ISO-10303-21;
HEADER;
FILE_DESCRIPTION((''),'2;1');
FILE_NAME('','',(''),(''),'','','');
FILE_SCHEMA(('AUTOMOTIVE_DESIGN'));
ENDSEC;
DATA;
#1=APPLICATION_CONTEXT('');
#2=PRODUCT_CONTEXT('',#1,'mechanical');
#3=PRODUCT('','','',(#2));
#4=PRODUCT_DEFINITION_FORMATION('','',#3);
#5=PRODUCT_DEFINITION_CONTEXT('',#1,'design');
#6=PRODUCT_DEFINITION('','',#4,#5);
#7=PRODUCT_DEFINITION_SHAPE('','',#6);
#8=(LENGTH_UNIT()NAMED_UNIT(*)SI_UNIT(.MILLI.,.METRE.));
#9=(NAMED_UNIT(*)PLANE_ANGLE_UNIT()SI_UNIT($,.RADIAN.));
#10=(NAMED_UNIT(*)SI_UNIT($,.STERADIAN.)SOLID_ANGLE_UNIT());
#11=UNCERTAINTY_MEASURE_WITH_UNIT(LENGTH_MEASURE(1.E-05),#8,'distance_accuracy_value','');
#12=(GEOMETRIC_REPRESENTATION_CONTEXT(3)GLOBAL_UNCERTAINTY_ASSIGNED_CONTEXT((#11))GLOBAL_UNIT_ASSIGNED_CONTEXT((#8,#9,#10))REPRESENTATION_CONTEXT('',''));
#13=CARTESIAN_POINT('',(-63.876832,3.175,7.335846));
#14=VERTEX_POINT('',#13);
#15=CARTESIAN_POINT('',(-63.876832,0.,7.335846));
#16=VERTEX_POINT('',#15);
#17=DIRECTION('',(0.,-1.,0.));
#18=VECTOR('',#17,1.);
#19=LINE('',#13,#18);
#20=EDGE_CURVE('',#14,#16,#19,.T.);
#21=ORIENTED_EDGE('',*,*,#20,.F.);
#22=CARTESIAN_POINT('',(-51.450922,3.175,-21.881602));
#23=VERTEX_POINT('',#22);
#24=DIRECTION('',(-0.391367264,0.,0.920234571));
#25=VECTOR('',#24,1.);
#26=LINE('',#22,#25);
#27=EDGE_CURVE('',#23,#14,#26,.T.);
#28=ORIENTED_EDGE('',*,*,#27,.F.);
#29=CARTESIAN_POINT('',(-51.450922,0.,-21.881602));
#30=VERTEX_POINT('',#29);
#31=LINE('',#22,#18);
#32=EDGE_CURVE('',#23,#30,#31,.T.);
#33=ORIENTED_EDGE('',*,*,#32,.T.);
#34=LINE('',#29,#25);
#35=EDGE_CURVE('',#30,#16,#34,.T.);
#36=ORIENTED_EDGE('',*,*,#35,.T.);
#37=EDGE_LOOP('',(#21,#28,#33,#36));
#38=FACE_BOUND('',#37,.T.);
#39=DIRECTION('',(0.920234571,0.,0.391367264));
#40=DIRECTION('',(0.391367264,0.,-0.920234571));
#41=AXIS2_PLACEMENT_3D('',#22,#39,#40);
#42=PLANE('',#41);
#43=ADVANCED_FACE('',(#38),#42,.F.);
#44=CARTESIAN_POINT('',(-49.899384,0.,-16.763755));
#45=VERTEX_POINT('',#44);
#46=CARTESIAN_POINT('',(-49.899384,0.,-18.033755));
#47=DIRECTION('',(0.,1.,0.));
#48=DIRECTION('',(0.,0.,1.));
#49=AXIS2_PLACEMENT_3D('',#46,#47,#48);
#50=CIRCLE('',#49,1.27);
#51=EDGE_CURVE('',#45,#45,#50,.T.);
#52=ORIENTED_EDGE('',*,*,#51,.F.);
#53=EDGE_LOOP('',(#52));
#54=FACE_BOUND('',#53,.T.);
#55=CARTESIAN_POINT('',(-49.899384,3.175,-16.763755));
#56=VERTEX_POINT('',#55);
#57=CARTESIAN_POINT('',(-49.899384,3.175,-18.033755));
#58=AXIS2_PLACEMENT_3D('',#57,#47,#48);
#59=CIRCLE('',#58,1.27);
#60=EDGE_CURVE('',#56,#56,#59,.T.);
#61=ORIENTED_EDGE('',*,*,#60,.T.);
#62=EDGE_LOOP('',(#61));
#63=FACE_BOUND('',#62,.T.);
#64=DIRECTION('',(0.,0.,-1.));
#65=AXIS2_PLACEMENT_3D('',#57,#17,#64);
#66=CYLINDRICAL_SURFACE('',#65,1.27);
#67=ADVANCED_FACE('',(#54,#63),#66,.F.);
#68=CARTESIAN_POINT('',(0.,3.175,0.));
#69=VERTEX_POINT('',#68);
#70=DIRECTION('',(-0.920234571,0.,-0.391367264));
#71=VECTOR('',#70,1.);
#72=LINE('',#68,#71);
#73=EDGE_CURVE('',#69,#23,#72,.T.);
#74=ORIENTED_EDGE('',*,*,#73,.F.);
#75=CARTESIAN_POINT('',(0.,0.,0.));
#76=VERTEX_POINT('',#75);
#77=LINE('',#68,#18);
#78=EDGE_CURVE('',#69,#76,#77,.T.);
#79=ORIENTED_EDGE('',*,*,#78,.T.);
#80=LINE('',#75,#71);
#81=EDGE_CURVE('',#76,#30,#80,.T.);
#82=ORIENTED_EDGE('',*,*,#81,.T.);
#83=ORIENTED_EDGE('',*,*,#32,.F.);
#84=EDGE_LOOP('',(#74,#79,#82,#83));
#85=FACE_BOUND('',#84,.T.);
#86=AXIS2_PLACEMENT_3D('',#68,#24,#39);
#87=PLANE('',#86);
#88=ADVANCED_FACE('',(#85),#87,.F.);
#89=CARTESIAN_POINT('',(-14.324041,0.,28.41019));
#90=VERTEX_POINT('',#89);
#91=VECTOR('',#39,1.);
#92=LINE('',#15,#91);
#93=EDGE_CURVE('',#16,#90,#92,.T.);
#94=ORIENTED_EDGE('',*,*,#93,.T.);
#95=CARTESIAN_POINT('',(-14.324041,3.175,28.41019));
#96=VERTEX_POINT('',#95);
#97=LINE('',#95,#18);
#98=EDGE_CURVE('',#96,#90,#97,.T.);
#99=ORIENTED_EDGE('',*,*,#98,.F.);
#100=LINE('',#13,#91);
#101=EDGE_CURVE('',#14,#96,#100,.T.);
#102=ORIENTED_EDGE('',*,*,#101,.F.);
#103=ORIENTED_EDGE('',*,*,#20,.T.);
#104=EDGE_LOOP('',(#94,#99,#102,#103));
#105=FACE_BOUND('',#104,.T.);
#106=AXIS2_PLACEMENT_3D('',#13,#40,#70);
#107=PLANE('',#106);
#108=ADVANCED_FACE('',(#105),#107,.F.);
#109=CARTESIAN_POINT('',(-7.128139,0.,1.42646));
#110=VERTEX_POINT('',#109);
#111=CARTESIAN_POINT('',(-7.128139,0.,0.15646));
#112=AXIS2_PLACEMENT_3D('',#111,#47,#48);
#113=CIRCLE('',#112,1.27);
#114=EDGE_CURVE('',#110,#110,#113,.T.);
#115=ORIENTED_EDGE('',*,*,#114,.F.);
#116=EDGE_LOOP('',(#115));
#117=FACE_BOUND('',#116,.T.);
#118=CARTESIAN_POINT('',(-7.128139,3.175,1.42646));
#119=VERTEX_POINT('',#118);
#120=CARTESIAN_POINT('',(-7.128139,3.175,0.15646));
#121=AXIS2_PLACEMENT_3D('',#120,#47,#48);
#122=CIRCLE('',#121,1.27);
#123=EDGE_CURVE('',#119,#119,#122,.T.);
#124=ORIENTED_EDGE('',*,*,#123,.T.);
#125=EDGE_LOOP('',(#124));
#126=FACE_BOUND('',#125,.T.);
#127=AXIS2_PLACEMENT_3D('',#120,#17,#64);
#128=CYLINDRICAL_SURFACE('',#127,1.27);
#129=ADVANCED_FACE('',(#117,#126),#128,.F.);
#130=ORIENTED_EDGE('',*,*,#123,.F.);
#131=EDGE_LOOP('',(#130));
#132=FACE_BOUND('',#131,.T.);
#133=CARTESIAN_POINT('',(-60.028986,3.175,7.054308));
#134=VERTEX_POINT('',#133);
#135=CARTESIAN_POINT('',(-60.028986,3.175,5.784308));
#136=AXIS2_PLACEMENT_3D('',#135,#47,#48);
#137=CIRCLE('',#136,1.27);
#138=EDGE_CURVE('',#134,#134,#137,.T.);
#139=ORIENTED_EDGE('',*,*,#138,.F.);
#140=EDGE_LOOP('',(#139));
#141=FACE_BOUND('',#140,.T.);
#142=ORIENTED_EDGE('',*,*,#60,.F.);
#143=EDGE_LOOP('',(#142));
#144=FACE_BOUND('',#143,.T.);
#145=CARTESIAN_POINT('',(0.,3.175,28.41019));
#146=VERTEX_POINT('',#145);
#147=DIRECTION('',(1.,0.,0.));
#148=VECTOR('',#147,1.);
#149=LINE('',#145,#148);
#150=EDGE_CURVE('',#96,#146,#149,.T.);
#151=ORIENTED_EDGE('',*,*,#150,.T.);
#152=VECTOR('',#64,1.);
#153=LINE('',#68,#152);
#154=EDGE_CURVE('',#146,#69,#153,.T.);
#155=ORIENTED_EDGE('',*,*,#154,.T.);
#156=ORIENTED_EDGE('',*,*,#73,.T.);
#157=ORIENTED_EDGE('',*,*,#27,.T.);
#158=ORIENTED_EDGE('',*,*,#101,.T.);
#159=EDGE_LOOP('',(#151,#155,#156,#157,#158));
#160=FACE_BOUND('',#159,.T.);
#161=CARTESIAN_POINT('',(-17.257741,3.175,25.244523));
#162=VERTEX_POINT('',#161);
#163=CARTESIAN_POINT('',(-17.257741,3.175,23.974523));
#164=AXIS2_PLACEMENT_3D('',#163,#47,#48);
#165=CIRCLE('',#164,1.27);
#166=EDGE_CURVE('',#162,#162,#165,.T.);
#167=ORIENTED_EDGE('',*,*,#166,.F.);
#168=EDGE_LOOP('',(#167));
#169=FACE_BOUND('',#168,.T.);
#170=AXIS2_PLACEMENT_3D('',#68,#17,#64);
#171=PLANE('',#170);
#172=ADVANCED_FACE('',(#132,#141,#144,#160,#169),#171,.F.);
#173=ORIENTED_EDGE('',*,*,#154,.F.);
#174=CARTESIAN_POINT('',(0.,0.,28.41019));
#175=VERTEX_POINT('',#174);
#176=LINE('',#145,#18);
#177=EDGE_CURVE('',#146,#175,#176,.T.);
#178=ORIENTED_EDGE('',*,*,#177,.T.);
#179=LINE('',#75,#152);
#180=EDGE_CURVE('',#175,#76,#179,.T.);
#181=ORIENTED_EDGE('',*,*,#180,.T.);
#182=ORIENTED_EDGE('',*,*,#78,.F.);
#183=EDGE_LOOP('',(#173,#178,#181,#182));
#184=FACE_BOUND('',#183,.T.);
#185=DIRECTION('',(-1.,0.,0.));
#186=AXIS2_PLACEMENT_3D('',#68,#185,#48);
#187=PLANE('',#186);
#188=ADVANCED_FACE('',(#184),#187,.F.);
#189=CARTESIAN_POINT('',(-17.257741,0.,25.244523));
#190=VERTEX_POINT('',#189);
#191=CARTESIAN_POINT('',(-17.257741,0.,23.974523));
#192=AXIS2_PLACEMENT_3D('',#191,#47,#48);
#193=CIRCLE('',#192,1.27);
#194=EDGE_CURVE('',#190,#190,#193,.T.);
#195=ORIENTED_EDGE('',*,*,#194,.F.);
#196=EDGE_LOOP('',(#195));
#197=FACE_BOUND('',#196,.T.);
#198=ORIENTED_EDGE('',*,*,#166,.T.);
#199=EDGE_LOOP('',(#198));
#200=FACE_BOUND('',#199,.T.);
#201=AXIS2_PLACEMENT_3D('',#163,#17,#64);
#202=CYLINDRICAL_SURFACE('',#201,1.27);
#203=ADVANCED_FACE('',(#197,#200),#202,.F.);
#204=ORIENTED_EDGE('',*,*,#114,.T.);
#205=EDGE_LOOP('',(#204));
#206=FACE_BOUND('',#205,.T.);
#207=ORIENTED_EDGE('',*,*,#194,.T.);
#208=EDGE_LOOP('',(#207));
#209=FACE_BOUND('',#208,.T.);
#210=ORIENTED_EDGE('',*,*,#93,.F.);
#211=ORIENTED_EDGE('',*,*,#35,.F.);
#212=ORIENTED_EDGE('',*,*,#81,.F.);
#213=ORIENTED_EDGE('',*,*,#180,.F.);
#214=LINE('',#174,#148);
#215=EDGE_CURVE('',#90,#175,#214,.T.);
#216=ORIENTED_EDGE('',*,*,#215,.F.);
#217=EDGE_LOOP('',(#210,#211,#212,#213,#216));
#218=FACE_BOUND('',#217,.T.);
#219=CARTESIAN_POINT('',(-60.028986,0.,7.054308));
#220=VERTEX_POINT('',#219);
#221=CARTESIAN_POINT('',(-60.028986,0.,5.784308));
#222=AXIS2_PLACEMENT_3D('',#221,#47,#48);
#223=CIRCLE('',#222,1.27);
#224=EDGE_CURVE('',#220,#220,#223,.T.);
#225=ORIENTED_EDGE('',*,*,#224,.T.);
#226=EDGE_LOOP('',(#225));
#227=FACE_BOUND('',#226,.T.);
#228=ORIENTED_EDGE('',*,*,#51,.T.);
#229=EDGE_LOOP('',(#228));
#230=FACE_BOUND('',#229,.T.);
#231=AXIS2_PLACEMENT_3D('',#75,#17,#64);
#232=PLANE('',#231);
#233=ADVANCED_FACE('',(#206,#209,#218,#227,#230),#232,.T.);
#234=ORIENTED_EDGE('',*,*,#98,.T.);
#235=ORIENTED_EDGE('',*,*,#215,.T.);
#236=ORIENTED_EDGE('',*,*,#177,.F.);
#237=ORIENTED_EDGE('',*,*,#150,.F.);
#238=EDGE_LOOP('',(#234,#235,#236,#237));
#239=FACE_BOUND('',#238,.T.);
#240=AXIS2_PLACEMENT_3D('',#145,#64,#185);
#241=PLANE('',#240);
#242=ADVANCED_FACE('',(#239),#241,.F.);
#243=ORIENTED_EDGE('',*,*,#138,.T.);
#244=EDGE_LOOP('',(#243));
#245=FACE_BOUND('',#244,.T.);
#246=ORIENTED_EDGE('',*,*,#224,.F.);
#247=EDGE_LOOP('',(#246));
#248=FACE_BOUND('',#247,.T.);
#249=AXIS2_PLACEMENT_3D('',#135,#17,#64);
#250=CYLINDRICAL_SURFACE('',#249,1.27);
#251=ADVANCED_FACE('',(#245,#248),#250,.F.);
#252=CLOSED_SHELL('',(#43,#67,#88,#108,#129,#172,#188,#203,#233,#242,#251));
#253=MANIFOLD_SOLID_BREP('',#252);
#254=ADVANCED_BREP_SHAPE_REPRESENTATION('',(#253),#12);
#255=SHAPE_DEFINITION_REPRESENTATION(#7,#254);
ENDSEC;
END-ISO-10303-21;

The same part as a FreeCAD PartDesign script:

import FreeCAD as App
import Part
import Sketcher
from FreeCAD import Vector
Q = App.Units.Quantity


def add_polygon(sketch, points):
    """Adds a closed chain of lines whose ends are joined by coincident constraints."""
    first, n = sketch.GeometryCount, len(points)
    for a, b in zip(points, points[1:] + points[:1]):
        sketch.addGeometry(Part.LineSegment(App.Vector(*a, 0), App.Vector(*b, 0)), False)
    for i in range(n):
        sketch.addConstraint(Sketcher.Constraint("Coincident", first + i, 2, first + (i + 1) % n, 1))

doc = App.newDocument("Part")
body = doc.addObject("PartDesign::Body", "Body")

sketch1 = doc.addObject("Sketcher::SketchObject", "Sketch")
body.addObject(sketch1)
sketch1.AttachmentSupport = (doc.XZ_Plane, [""])
sketch1.MapMode = "FlatFace"
add_polygon(sketch1, [(0, 0), (-51.5, -21.9), (-63.9, 7.3), (-14.3, 28.4), (0, 28.4)])
sketch1.addGeometry(Part.Circle(Vector(-60, 5.8, 0), Vector(0, 0, 1), 1.3), False)
sketch1.addGeometry(Part.Circle(Vector(-17.3, 24, 0), Vector(0, 0, 1), 1.3), False)
sketch1.addGeometry(Part.Circle(Vector(-49.9, -18, 0), Vector(0, 0, 1), 1.3), False)
sketch1.addGeometry(Part.Circle(Vector(-7.1, 0.2, 0), Vector(0, 0, 1), 1.3), False)
sketch1.addConstraint([
    Sketcher.Constraint("Horizontal", 3),
    Sketcher.Constraint("Vertical", 4),
    Sketcher.Constraint("Coincident", 4, 2, -1, 1),
    Sketcher.Constraint("Equal", 5, 6),
    Sketcher.Constraint("Equal", 6, 7),
    Sketcher.Constraint("Equal", 7, 8),
    Sketcher.Constraint("Perpendicular", 0, 1),
    Sketcher.Constraint("Perpendicular", 1, 2),
    Sketcher.Constraint("Diameter", 5, Q("0.1 in")),
    Sketcher.Constraint("Distance", 1, Q("1.25 in")),
    Sketcher.Constraint("Distance", 2, Q("2.12 in")),
    Sketcher.Constraint("DistanceX", 6, 3, 2, 2, Q("0.1155 in")),
    Sketcher.Constraint("DistanceX", 3, 1, 3, 2, Q("14.324041 mm")),
    Sketcher.Constraint("DistanceY", 4, 2, 4, 1, Q("28.41019 mm")),
    Sketcher.Constraint("DistanceY", 7, 3, 1, 2, Q("25.369601 mm")),
    Sketcher.Constraint("DistanceX", 8, 3, -1, 1, Q("7.128139 mm")),
    Sketcher.Constraint("DistanceY", -1, 1, 8, 3, Q("0.15646 mm")),
    Sketcher.Constraint("DistanceY", 7, 3, 6, 3, Q("42.008279 mm")),
    Sketcher.Constraint("DistanceX", 0, 2, 7, 3, Q("1.551538 mm")),
    Sketcher.Constraint("DistanceY", 0, 2, 5, 3, Q("27.66591 mm")),
    Sketcher.Constraint("DistanceX", 5, 3, -1, 1, Q("60.028986 mm")),
])
pad1 = doc.addObject("PartDesign::Pad", "Pad")
body.addObject(pad1)
pad1.Profile = sketch1
pad1.Length = Q("0.125 in")
pad1.Reversed = True

doc.recompute()
